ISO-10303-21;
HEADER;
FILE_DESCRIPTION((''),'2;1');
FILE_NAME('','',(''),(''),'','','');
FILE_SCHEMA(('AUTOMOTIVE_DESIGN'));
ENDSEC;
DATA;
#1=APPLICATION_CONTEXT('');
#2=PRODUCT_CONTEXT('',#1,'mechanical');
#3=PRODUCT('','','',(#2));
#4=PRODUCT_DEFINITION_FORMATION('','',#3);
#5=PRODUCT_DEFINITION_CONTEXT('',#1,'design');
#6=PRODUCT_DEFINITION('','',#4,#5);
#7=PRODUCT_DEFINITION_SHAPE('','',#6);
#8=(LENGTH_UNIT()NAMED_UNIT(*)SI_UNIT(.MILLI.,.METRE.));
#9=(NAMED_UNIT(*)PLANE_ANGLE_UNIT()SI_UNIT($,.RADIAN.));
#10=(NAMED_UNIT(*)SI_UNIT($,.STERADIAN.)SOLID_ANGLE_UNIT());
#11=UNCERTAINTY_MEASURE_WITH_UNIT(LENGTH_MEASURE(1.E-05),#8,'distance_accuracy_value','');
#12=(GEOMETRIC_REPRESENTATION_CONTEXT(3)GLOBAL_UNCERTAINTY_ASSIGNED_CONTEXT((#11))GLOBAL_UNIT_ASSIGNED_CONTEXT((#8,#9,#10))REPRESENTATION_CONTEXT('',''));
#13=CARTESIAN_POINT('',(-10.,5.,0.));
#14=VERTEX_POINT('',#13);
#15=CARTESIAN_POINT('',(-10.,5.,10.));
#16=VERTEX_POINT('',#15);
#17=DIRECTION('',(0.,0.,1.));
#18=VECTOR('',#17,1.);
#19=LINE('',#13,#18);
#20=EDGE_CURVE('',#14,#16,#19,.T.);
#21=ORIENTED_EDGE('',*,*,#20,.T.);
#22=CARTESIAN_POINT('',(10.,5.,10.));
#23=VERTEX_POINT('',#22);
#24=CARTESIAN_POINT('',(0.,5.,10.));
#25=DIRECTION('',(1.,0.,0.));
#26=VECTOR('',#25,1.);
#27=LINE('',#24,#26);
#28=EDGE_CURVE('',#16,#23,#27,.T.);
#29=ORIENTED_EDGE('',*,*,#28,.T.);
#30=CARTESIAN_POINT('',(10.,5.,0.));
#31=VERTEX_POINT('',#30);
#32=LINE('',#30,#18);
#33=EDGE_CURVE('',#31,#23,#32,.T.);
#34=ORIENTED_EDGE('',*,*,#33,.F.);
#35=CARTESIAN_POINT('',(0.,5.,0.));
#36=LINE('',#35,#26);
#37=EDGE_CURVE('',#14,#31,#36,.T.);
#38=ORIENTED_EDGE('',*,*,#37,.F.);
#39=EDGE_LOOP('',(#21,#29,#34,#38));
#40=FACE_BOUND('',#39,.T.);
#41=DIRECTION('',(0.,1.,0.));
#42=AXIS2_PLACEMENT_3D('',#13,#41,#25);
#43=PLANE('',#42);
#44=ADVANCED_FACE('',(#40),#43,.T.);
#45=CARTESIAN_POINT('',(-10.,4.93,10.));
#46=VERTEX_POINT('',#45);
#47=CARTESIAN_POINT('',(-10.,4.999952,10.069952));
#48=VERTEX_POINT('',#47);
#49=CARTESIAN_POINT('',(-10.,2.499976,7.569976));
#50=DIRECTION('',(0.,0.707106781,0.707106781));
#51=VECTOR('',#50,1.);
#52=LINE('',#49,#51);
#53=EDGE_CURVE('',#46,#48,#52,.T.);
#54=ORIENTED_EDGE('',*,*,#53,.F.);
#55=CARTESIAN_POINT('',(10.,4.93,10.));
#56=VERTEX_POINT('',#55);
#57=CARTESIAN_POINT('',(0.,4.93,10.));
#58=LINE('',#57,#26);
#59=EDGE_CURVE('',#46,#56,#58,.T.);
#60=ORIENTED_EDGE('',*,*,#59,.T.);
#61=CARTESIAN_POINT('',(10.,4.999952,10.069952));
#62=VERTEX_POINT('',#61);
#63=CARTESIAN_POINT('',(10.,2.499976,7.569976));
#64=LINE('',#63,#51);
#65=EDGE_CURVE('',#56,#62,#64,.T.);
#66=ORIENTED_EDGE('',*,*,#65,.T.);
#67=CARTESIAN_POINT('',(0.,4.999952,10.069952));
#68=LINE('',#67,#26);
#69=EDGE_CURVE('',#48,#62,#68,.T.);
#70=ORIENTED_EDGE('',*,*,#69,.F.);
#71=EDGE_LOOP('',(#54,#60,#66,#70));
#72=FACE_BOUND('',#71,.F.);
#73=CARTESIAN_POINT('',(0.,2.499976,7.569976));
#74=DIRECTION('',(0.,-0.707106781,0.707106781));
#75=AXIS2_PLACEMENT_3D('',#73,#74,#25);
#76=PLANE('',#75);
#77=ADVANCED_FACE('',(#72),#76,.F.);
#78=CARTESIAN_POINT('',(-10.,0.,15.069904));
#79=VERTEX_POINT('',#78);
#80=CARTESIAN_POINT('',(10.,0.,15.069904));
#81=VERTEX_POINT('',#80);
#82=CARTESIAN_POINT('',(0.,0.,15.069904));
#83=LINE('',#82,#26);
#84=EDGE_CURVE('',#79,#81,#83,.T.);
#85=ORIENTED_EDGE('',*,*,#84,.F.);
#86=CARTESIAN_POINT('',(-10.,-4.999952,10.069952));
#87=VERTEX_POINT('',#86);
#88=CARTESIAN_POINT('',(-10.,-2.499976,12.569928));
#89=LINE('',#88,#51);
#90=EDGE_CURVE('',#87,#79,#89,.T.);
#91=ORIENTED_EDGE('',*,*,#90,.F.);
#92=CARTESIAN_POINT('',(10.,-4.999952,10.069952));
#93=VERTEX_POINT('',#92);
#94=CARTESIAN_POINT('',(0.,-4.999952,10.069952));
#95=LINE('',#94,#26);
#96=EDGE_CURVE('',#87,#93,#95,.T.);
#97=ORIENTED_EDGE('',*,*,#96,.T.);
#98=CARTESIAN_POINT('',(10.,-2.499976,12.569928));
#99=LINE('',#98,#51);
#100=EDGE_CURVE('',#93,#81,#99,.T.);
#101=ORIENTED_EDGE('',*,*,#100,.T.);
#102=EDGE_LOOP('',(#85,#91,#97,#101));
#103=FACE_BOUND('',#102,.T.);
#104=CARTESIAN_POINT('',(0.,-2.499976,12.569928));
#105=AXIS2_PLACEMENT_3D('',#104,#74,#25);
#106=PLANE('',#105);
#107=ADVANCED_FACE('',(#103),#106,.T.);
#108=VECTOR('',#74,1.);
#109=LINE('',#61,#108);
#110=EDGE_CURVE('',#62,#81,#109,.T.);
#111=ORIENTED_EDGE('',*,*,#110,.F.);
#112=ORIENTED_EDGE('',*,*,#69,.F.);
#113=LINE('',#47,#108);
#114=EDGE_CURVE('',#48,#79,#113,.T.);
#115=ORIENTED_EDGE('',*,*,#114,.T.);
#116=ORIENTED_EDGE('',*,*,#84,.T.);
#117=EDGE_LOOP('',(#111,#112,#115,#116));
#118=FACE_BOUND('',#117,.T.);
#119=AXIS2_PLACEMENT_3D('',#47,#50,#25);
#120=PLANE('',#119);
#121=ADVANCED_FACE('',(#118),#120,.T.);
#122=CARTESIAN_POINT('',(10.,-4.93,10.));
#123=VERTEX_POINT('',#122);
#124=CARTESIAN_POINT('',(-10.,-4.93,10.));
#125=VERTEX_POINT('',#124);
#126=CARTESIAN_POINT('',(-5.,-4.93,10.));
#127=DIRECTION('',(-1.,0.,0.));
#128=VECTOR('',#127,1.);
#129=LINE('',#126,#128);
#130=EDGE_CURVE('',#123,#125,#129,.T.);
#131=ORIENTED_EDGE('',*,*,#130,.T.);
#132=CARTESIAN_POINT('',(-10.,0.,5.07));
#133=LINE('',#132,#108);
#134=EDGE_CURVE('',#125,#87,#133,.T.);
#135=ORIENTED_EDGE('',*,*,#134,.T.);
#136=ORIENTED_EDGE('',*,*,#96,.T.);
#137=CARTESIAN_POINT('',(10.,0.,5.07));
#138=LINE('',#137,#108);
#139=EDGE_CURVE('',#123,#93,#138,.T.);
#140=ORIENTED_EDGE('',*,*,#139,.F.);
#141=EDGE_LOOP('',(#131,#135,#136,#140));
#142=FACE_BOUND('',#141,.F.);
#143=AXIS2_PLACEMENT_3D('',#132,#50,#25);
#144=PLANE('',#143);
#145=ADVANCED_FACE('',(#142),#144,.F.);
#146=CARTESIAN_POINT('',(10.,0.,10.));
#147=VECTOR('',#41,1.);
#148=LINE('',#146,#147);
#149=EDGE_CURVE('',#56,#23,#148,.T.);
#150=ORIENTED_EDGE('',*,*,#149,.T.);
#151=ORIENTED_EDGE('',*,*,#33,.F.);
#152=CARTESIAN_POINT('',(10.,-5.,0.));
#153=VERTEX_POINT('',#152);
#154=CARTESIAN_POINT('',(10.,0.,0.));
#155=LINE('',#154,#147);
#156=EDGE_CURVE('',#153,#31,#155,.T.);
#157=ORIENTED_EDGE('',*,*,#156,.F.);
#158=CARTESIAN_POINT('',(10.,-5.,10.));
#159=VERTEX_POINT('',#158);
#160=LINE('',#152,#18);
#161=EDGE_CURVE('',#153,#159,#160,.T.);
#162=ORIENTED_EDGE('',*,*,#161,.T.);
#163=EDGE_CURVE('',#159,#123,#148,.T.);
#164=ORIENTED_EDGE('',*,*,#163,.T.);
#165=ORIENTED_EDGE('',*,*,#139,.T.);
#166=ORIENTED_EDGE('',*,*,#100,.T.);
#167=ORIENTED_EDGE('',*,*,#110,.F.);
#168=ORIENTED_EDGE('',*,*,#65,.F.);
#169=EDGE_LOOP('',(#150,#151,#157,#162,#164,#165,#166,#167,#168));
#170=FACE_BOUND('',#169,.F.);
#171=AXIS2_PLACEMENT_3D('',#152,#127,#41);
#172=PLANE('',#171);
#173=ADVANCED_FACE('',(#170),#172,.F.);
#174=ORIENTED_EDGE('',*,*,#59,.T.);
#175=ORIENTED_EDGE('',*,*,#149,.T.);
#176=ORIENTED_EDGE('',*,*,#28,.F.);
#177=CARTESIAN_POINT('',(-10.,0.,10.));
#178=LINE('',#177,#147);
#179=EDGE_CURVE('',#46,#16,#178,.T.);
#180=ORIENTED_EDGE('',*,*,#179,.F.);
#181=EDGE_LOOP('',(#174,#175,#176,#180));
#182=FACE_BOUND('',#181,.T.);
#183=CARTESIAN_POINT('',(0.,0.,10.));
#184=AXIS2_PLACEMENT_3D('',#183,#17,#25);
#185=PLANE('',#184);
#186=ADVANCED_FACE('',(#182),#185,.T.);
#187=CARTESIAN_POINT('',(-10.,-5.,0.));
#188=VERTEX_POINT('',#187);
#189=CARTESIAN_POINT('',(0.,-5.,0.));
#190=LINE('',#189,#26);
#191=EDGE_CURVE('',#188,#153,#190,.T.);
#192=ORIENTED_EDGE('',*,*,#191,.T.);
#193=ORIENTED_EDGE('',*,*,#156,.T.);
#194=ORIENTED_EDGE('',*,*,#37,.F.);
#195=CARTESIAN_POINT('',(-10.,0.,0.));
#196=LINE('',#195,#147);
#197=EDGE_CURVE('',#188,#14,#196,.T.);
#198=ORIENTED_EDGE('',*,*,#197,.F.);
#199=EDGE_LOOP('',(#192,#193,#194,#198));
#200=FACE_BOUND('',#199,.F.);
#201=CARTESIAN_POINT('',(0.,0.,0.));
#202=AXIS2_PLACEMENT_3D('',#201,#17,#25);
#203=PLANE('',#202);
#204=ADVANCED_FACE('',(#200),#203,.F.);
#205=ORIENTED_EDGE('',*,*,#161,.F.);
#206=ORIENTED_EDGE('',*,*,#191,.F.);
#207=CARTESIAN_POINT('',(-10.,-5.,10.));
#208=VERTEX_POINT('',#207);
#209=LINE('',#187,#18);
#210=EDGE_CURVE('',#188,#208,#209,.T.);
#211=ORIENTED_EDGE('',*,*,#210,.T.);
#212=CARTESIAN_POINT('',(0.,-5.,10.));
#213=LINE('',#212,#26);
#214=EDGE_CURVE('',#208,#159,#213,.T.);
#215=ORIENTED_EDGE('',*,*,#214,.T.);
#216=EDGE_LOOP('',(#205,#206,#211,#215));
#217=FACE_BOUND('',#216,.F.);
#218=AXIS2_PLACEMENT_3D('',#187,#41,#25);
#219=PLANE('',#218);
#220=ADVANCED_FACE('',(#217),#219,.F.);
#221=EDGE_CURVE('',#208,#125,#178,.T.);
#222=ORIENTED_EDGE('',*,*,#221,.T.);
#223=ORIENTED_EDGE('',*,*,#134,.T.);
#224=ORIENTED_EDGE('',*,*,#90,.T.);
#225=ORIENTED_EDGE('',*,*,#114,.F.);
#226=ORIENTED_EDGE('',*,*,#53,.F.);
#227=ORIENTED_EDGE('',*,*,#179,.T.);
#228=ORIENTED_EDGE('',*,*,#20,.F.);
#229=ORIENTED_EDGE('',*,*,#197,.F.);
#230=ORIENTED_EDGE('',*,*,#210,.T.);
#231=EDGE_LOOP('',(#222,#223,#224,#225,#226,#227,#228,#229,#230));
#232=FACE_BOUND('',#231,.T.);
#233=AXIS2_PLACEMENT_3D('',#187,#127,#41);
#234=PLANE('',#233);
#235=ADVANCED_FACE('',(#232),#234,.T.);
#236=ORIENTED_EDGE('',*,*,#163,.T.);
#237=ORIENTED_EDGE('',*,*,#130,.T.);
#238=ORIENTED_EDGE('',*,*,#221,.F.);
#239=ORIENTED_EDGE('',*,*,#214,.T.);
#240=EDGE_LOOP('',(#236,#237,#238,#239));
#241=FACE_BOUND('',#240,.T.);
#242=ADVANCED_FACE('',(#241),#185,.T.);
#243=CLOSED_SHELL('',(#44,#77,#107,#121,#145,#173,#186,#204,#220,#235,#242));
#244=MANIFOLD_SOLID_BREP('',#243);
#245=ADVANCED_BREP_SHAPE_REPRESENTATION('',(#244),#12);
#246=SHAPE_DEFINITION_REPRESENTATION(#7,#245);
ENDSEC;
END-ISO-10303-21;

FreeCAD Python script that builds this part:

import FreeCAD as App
import Part
import Sketcher

V = App.Vector


def add_polygon(sketch, points):
    """Adds a closed chain of lines whose ends are joined by coincident constraints."""
    first, n = sketch.GeometryCount, len(points)
    for a, b in zip(points, points[1:] + points[:1]):
        sketch.addGeometry(Part.LineSegment(App.Vector(*a, 0), App.Vector(*b, 0)), False)
    for i in range(n):
        sketch.addConstraint(Sketcher.Constraint("Coincident", first + i, 2, first + (i + 1) % n, 1))

doc = App.newDocument("Part")
params = doc.addObject("Spreadsheet::Sheet", "Params")
for row, (alias, value) in enumerate([
    ("sketch1_width", "20 mm"),
    ("pad1_length", "7.071 mm"),
    ("sketch2_width", "20 mm"),
    ("sketch2_height", "10 mm"),
    ("pad2_length", "10 mm"),
], start=1):
    params.set(f"A{row}", alias)
    params.set(f"B{row}", "=" + value)
    params.setAlias(f"B{row}", alias)

body = doc.addObject("PartDesign::Body", "Body")

sketch1 = body.newObject("Sketcher::SketchObject", "Sketch")
sketch1.AttachmentSupport = (doc.getObject("XY_Plane"), [""])
sketch1.MapMode = "FlatFace"
add_polygon(sketch1, [(0, 7), (0, 0), (20, 0), (20, 7)])
sketch1.addConstraint(Sketcher.Constraint("Vertical", 0))
sketch1.addConstraint(Sketcher.Constraint("Horizontal", 1))
sketch1.addConstraint(Sketcher.Constraint("Vertical", 2))
sketch1.addConstraint(Sketcher.Constraint("Horizontal", 3))
sketch1.addConstraint(Sketcher.Constraint("Coincident", 0, 2, -1, 1))
sketch1.addConstraint(Sketcher.Constraint("DistanceX", 1, 1, 1, 2, 20.0))
sketch1.addConstraint(Sketcher.Constraint("DistanceY", 0, 2, 0, 1, 7.071))
sketch1.setExpression("Constraints[9]", "Params.sketch1_width")
pad1 = body.newObject("PartDesign::Pad", "Pad")
pad1.Profile = sketch1
pad1.setExpression("Length", "Params.pad1_length")
body2 = doc.addObject("PartDesign::Body", "Body001")
doc.recompute()

body.Placement = App.Placement(V(-10, 0, 5.07), App.Rotation(V(1, 0, 0), 45))
boolean = body2.newObject("PartDesign::Boolean", "Boolean")
boolean.Type = "Fuse"
boolean.addObjects([body])
body3 = doc.addObject("PartDesign::Body", "Body002")

sketch2 = body3.newObject("Sketcher::SketchObject", "Sketch001")
sketch2.AttachmentSupport = (doc.getObject("XY_Plane002"), [""])
sketch2.MapMode = "FlatFace"
add_polygon(sketch2, [(-10, 5), (-10, -5), (10, -5), (10, 5)])
sketch2.addConstraint(Sketcher.Constraint("Vertical", 0))
sketch2.addConstraint(Sketcher.Constraint("Horizontal", 1))
sketch2.addConstraint(Sketcher.Constraint("Vertical", 2))
sketch2.addConstraint(Sketcher.Constraint("Horizontal", 3))
sketch2.addConstraint(Sketcher.Constraint("Symmetric", 0, 2, 2, 2, -1, 1))
sketch2.addConstraint(Sketcher.Constraint("DistanceX", 1, 1, 1, 2, 20.0))
sketch2.addConstraint(Sketcher.Constraint("DistanceY", 0, 2, 0, 1, 10.0))
sketch2.setExpression("Constraints[9]", "Params.sketch2_width")
sketch2.setExpression("Constraints[10]", "Params.sketch2_height")
pad2 = body3.newObject("PartDesign::Pad", "Pad001")
pad2.Profile = sketch2
pad2.setExpression("Length", "Params.pad2_length")
doc.recompute()

boolean2 = body3.newObject("PartDesign::Boolean", "Boolean001")
boolean2.Type = "Fuse"
boolean2.addObjects([body2])

doc.recompute()
